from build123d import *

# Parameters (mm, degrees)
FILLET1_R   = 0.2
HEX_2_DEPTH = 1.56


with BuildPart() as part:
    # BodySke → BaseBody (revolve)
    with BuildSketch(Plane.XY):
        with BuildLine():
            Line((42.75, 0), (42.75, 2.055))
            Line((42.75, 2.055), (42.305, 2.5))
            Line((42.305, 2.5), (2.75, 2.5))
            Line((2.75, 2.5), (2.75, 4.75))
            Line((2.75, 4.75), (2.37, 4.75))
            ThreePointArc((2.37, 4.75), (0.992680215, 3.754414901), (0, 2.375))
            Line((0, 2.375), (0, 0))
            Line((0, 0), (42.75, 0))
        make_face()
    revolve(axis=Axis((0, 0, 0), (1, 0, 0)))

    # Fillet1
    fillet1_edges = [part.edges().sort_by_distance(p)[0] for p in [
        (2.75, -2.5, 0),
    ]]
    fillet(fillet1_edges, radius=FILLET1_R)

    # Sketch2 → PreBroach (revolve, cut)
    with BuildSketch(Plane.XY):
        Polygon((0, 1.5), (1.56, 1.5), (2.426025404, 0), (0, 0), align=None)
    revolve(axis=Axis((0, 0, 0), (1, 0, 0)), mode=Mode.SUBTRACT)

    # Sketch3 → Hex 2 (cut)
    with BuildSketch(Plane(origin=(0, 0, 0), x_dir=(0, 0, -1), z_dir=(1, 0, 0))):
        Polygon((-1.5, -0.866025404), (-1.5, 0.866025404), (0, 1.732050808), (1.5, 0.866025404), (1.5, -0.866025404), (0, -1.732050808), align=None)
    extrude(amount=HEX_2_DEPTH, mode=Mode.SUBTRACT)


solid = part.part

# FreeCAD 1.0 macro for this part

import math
import FreeCAD as App
import Part
import Sketcher

V = App.Vector
Q = App.Units.Quantity


def edges_at(feature, points):
    """Names of the edges that pass closest to the given points."""
    edges = feature.Shape.Edges
    near = lambda p: min(range(len(edges)), key=lambda i: edges[i].distToShape(Part.Vertex(*p))[0])
    return sorted({f"Edge{near(p) + 1}" for p in points})

doc = App.newDocument("Part")
params = doc.addObject("Spreadsheet::Sheet", "Params")
for row, (alias, value) in enumerate([
    ("sketch1_width", "0.38 mm"),
    ("sketch1_width2", "42.75 mm"),
    ("sketch1_height", "2.25 mm"),
    ("revolution_angle", "360 deg"),
    ("fillet_radius", "0.2 mm"),
    ("sketch2_height", "1.5 mm"),
    ("sketch2_width", "1.56 mm"),
    ("groove_angle", "360 deg"),
    ("pocket1_length", "1.56 mm"),
], start=1):
    params.set(f"A{row}", alias)
    params.set(f"B{row}", "=" + value)
    params.setAlias(f"B{row}", alias)

body = doc.addObject("PartDesign::Body", "Body")

sketch1 = body.newObject("Sketcher::SketchObject", "Sketch")
sketch1.AttachmentSupport = (doc.getObject("XY_Plane"), [""])
sketch1.MapMode = "FlatFace"
sketch1.addGeometry([
    Part.LineSegment(V(42.75, 0, 0), V(42.75, 2.055, 0)),
    Part.LineSegment(V(42.75, 2.055, 0), V(42.305, 2.5, 0)),
    Part.LineSegment(V(42.305, 2.5, 0), V(2.75, 2.5, 0)),
    Part.LineSegment(V(2.75, 2.5, 0), V(2.75, 4.75, 0)),
    Part.LineSegment(V(2.75, 4.75, 0), V(2.37, 4.75, 0)),
    Part.ArcOfCircle(Part.Circle(V(4.755016, 0, 0), V(0, 0, 1), 5.315148), math.radians(116.66162), math.radians(153.459129)),
    Part.LineSegment(V(0, 2.375, 0), V(0, 0, 0)),
    Part.LineSegment(V(0, 0, 0), V(42.75, 0, 0)),
], False)
sketch1.addConstraint([
    Sketcher.Constraint("Coincident", 0, 2, 1, 1),
    Sketcher.Constraint("Coincident", 1, 2, 2, 1),
    Sketcher.Constraint("Coincident", 2, 2, 3, 1),
    Sketcher.Constraint("Coincident", 3, 2, 4, 1),
    Sketcher.Constraint("Coincident", 4, 2, 5, 1),
    Sketcher.Constraint("Coincident", 5, 2, 6, 1),
    Sketcher.Constraint("Coincident", 6, 2, 7, 1),
    Sketcher.Constraint("Coincident", 7, 2, 0, 1),
    Sketcher.Constraint("Vertical", 0),
    Sketcher.Constraint("Horizontal", 2),
    Sketcher.Constraint("Vertical", 3),
    Sketcher.Constraint("Horizontal", 4),
    Sketcher.Constraint("Vertical", 6),
    Sketcher.Constraint("Horizontal", 7),
    Sketcher.Constraint("Coincident", 6, 2, -1, 1),
    Sketcher.Constraint("PointOnObject", 5, 3, -1),
    Sketcher.Constraint("Angle", 1, Q("135 deg")),
    Sketcher.Constraint("DistanceX", 2, 2, 0, 2, 40.0),
    Sketcher.Constraint("DistanceX", 4, 2, 4, 1, 0.38),
    Sketcher.Constraint("DistanceX", 7, 1, 7, 2, 42.75),
    Sketcher.Constraint("DistanceY", 3, 1, 3, 2, 2.25),
    Sketcher.Constraint("DistanceY", -1, 1, 1, 2, 2.5),
    Sketcher.Constraint("DistanceX", 2, 2, 2, 1, 39.555),
    Sketcher.Constraint("DistanceY", 6, 2, 6, 1, 2.375),
])
sketch1.setExpression("Constraints[18]", "Params.sketch1_width")
sketch1.setExpression("Constraints[19]", "Params.sketch1_width2")
sketch1.setExpression("Constraints[20]", "Params.sketch1_height")
revolution = body.newObject("PartDesign::Revolution", "Revolution")
revolution.Profile = sketch1
revolution.ReferenceAxis = (sketch1, ["H_Axis"])
revolution.setExpression("Angle", "Params.revolution_angle")
doc.recompute()

fillet = body.newObject("PartDesign::Fillet", "Fillet")
fillet.Base = (revolution, edges_at(revolution, [(2.75, -2.5, 0)]))
fillet.setExpression("Radius", "Params.fillet_radius")

sketch2 = body.newObject("Sketcher::SketchObject", "Sketch001")
sketch2.AttachmentSupport = (doc.getObject("XY_Plane"), [""])
sketch2.MapMode = "FlatFace"
sketch2.addGeometry([
    Part.LineSegment(V(1.56, 1.5, 0), V(0, 1.5, 0)),
    Part.LineSegment(V(0, 1.5, 0), V(0, 0, 0)),
    Part.LineSegment(V(0, 0, 0), V(2.426025, 0, 0)),
    Part.LineSegment(V(2.426025, 0, 0), V(1.56, 1.5, 0)),
], False)
sketch2.addConstraint([
    Sketcher.Constraint("Coincident", 0, 2, 1, 1),
    Sketcher.Constraint("Coincident", 1, 2, 2, 1),
    Sketcher.Constraint("Coincident", 2, 2, 3, 1),
    Sketcher.Constraint("Coincident", 3, 2, 0, 1),
    Sketcher.Constraint("Horizontal", 0),
    Sketcher.Constraint("Vertical", 1),
    Sketcher.Constraint("Horizontal", 2),
    Sketcher.Constraint("Coincident", 1, 2, -1, 1),
    Sketcher.Constraint("Angle", 3, Q("120 deg")),
    Sketcher.Constraint("DistanceY", 1, 2, 1, 1, 1.5),
    Sketcher.Constraint("DistanceX", 0, 2, 0, 1, 1.56),
])
sketch2.setExpression("Constraints[9]", "Params.sketch2_height")
sketch2.setExpression("Constraints[10]", "Params.sketch2_width")
groove = body.newObject("PartDesign::Groove", "Groove")
groove.Profile = sketch2
groove.ReferenceAxis = (sketch2, ["H_Axis"])
groove.setExpression("Angle", "Params.groove_angle")

sketch3 = body.newObject("Sketcher::SketchObject", "Sketch002")
sketch3.AttachmentSupport = (doc.getObject("YZ_Plane"), [""])
sketch3.MapMode = "FlatFace"
sketch3.addGeometry([
    Part.LineSegment(V(0.866025, 1.5, 0), V(-0.866025, 1.5, 0)),
    Part.LineSegment(V(-0.866025, 1.5, 0), V(-1.732051, 0, 0)),
    Part.LineSegment(V(-1.732051, 0, 0), V(-0.866025, -1.5, 0)),
    Part.LineSegment(V(-0.866025, -1.5, 0), V(0.866025, -1.5, 0)),
    Part.LineSegment(V(0.866025, -1.5, 0), V(1.732051, 0, 0)),
    Part.LineSegment(V(1.732051, 0, 0), V(0.866025, 1.5, 0)),
], False)
sketch3.addConstraint([
    Sketcher.Constraint("Coincident", 0, 2, 1, 1),
    Sketcher.Constraint("Coincident", 1, 2, 2, 1),
    Sketcher.Constraint("Coincident", 2, 2, 3, 1),
    Sketcher.Constraint("Coincident", 3, 2, 4, 1),
    Sketcher.Constraint("Coincident", 4, 2, 5, 1),
    Sketcher.Constraint("Coincident", 5, 2, 0, 1),
    Sketcher.Constraint("Horizontal", 0),
    Sketcher.Constraint("Horizontal", 3),
    Sketcher.Constraint("Symmetric", 0, 2, 3, 2, -1, 1),
    Sketcher.Constraint("Symmetric", 1, 2, 4, 2, -1, 1),
    Sketcher.Constraint("PointOnObject", 1, 2, -1),
    Sketcher.Constraint("Parallel", 2, 5),
    Sketcher.Constraint("Vertical", 0, 2, 2, 2),
    Sketcher.Constraint("Angle", 1, Q("-120 deg")),
    Sketcher.Constraint("DistanceY", 2, 2, 0, 2, 3.0),
    Sketcher.Constraint("DistanceX", 0, 2, 0, 1, 1.732051),
])
pocket1 = body.newObject("PartDesign::Pocket", "Pocket")
pocket1.Profile = sketch3
pocket1.setExpression("Length", "Params.pocket1_length")
pocket1.Reversed = True

doc.recompute()
